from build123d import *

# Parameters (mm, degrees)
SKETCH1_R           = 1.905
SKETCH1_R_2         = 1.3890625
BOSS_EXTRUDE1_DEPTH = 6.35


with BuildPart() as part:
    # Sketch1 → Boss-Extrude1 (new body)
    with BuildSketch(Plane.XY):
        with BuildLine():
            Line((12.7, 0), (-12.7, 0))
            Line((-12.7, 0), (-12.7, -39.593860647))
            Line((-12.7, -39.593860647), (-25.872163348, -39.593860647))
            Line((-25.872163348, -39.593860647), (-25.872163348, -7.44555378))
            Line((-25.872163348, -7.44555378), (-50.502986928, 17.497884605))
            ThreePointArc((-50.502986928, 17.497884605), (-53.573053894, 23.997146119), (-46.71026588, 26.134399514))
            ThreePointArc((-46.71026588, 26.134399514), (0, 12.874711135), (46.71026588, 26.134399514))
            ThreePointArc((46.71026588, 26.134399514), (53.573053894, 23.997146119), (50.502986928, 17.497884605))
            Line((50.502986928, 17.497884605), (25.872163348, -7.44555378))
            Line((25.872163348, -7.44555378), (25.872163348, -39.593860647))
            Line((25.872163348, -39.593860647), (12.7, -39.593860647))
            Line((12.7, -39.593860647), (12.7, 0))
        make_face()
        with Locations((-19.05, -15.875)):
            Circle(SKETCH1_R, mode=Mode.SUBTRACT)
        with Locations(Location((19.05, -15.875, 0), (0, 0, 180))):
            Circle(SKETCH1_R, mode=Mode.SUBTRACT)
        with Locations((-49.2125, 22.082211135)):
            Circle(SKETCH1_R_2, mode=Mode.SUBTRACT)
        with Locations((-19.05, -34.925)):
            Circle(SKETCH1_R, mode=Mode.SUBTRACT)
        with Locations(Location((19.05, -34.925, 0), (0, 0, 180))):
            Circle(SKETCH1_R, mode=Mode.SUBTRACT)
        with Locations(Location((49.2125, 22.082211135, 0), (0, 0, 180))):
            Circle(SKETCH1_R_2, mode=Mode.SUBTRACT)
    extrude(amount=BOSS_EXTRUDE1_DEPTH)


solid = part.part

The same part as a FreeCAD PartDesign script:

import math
import FreeCAD as App
import Part
import Sketcher
from FreeCAD import Vector
Q = App.Units.Quantity

doc = App.newDocument("Part")
body = doc.addObject("PartDesign::Body", "Body")

# Sketch on XY plane
sketch1 = body.newObject("Sketcher::SketchObject", "Sketch")
sketch1.AttachmentSupport = (doc.getObject("XY_Plane"), [""])
sketch1.MapMode = "FlatFace"
sketch1.addGeometry(Part.LineSegment(Vector(-12.7, 0, 0), Vector(12.7, 0, 0)), False)
sketch1.addGeometry(Part.LineSegment(Vector(12.7, 0, 0), Vector(12.7, -39.593861, 0)), False)
sketch1.addGeometry(Part.LineSegment(Vector(12.7, -39.593861, 0), Vector(25.872163, -39.593861, 0)), False)
sketch1.addGeometry(Part.LineSegment(Vector(25.872163, -39.593861, 0), Vector(25.872163, -7.445554, 0)), False)
sketch1.addGeometry(Part.LineSegment(Vector(25.872163, -7.445554, 0), Vector(50.502987, 17.497885, 0)), False)
sketch1.addGeometry(Part.ArcOfCircle(Part.Circle(Vector(49.2125, 22.082211, 0), Vector(0, 0, 1), 4.7625), math.radians(-74.278101), math.radians(121.69541)), False)
sketch1.addGeometry(Part.ArcOfCircle(Part.Circle(Vector(0, 101.778319, 0), Vector(0, 0, 1), 88.903608), math.radians(-121.69541), math.radians(-58.30459)), False)
sketch1.addGeometry(Part.ArcOfCircle(Part.Circle(Vector(-49.2125, 22.082211, 0), Vector(0, 0, 1), 4.7625), math.radians(58.30459), math.radians(254.278101)), False)
sketch1.addGeometry(Part.LineSegment(Vector(-50.502987, 17.497885, 0), Vector(-25.872163, -7.445554, 0)), False)
sketch1.addGeometry(Part.LineSegment(Vector(-25.872163, -7.445554, 0), Vector(-25.872163, -39.593861, 0)), False)
sketch1.addGeometry(Part.LineSegment(Vector(-25.872163, -39.593861, 0), Vector(-12.7, -39.593861, 0)), False)
sketch1.addGeometry(Part.LineSegment(Vector(-12.7, -39.593861, 0), Vector(-12.7, 0, 0)), False)
sketch1.addGeometry(Part.Circle(Vector(19.05, -34.925, 0), Vector(0, 0, 1), 1.905), False)
sketch1.addGeometry(Part.Circle(Vector(19.05, -15.875, 0), Vector(0, 0, 1), 1.905), False)
sketch1.addGeometry(Part.Circle(Vector(-19.05, -34.925, 0), Vector(0, 0, 1), 1.905), False)
sketch1.addGeometry(Part.Circle(Vector(-19.05, -15.875, 0), Vector(0, 0, 1), 1.905), False)
sketch1.addGeometry(Part.Circle(Vector(49.2125, 22.082211, 0), Vector(0, 0, 1), 1.389063), False)
sketch1.addGeometry(Part.Circle(Vector(-49.2125, 22.082211, 0), Vector(0, 0, 1), 1.389063), False)
sketch1.addConstraint(Sketcher.Constraint("Coincident", 0, 2, 1, 1))
sketch1.addConstraint(Sketcher.Constraint("Coincident", 1, 2, 2, 1))
sketch1.addConstraint(Sketcher.Constraint("Coincident", 2, 2, 3, 1))
sketch1.addConstraint(Sketcher.Constraint("Coincident", 3, 2, 4, 1))
sketch1.addConstraint(Sketcher.Constraint("Coincident", 4, 2, 5, 1))
sketch1.addConstraint(Sketcher.Constraint("Tangent", 5, 2, 6, 2))
sketch1.addConstraint(Sketcher.Constraint("Tangent", 6, 1, 7, 1))
sketch1.addConstraint(Sketcher.Constraint("Coincident", 7, 2, 8, 1))
sketch1.addConstraint(Sketcher.Constraint("Coincident", 8, 2, 9, 1))
sketch1.addConstraint(Sketcher.Constraint("Coincident", 9, 2, 10, 1))
sketch1.addConstraint(Sketcher.Constraint("Coincident", 10, 2, 11, 1))
sketch1.addConstraint(Sketcher.Constraint("Coincident", 11, 2, 0, 1))
sketch1.addConstraint(Sketcher.Constraint("Horizontal", 0))
sketch1.addConstraint(Sketcher.Constraint("Vertical", 1))
sketch1.addConstraint(Sketcher.Constraint("Horizontal", 2))
sketch1.addConstraint(Sketcher.Constraint("Vertical", 3))
sketch1.addConstraint(Sketcher.Constraint("Vertical", 9))
sketch1.addConstraint(Sketcher.Constraint("Horizontal", 10))
sketch1.addConstraint(Sketcher.Constraint("Vertical", 11))
sketch1.addConstraint(Sketcher.Constraint("Coincident", 16, 3, 5, 3))
sketch1.addConstraint(Sketcher.Constraint("Coincident", 17, 3, 7, 3))
sketch1.addConstraint(Sketcher.Constraint("Equal", 5, 7))
sketch1.addConstraint(Sketcher.Constraint("Equal", 12, 13))
sketch1.addConstraint(Sketcher.Constraint("Equal", 13, 14))
sketch1.addConstraint(Sketcher.Constraint("Equal", 14, 15))
sketch1.addConstraint(Sketcher.Constraint("Equal", 16, 17))
sketch1.addConstraint(Sketcher.Constraint("Symmetric", 0, 2, 11, 2, -1, 1))
sketch1.addConstraint(Sketcher.Constraint("Symmetric", 5, 3, 7, 3, -2))
sketch1.addConstraint(Sketcher.Constraint("Symmetric", 12, 3, 14, 3, -2))
sketch1.addConstraint(Sketcher.Constraint("Symmetric", 13, 3, 15, 3, -2))
sketch1.addConstraint(Sketcher.Constraint("Symmetric", 3, 2, 8, 2, -2))
sketch1.addConstraint(Sketcher.Constraint("Horizontal", 4, 2, 7, 2))
sketch1.addConstraint(Sketcher.Constraint("Horizontal", 2, 2, 9, 2))
sketch1.addConstraint(Sketcher.Constraint("Vertical", 12, 3, 13, 3))
sketch1.addConstraint(Sketcher.Constraint("Diameter", 12, Q("0.15 in")))
sketch1.addConstraint(Sketcher.Constraint("DistanceX", 0, 1, 0, 2, Q("1 in")))
sketch1.addConstraint(Sketcher.Constraint("Diameter", 16, Q("0.109375 in")))
sketch1.addConstraint(Sketcher.Constraint("Radius", 5, Q("0.1875 in")))
sketch1.addConstraint(Sketcher.Constraint("DistanceX", 14, 3, 12, 3, Q("1.5 in")))
sketch1.addConstraint(Sketcher.Constraint("DistanceY", 12, 3, 13, 3, Q("0.75 in")))
sketch1.addConstraint(Sketcher.Constraint("DistanceX", -1, 1, 5, 3, Q("1.9375 in")))
sketch1.addConstraint(Sketcher.Constraint("DistanceY", 12, 3, -1, 1, Q("1.375 in")))
sketch1.addConstraint(Sketcher.Constraint("Radius", 6, 88.903608))
sketch1.addConstraint(Sketcher.Constraint("DistanceY", 1, 2, 1, 1, 39.593861))
sketch1.addConstraint(Sketcher.Constraint("DistanceY", -1, 1, 5, 2, 26.1344))
sketch1.addConstraint(Sketcher.Constraint("DistanceX", 2, 1, 2, 2, 13.172163))
sketch1.addConstraint(Sketcher.Constraint("DistanceY", 3, 1, 3, 2, 32.148307))
sketch1.addConstraint(Sketcher.Constraint("DistanceY", 3, 2, 4, 2, 24.943438))
pad1 = body.newObject("PartDesign::Pad", "Pad")
pad1.Profile = sketch1
pad1.Length = Q("0.25 in")

doc.recompute()
